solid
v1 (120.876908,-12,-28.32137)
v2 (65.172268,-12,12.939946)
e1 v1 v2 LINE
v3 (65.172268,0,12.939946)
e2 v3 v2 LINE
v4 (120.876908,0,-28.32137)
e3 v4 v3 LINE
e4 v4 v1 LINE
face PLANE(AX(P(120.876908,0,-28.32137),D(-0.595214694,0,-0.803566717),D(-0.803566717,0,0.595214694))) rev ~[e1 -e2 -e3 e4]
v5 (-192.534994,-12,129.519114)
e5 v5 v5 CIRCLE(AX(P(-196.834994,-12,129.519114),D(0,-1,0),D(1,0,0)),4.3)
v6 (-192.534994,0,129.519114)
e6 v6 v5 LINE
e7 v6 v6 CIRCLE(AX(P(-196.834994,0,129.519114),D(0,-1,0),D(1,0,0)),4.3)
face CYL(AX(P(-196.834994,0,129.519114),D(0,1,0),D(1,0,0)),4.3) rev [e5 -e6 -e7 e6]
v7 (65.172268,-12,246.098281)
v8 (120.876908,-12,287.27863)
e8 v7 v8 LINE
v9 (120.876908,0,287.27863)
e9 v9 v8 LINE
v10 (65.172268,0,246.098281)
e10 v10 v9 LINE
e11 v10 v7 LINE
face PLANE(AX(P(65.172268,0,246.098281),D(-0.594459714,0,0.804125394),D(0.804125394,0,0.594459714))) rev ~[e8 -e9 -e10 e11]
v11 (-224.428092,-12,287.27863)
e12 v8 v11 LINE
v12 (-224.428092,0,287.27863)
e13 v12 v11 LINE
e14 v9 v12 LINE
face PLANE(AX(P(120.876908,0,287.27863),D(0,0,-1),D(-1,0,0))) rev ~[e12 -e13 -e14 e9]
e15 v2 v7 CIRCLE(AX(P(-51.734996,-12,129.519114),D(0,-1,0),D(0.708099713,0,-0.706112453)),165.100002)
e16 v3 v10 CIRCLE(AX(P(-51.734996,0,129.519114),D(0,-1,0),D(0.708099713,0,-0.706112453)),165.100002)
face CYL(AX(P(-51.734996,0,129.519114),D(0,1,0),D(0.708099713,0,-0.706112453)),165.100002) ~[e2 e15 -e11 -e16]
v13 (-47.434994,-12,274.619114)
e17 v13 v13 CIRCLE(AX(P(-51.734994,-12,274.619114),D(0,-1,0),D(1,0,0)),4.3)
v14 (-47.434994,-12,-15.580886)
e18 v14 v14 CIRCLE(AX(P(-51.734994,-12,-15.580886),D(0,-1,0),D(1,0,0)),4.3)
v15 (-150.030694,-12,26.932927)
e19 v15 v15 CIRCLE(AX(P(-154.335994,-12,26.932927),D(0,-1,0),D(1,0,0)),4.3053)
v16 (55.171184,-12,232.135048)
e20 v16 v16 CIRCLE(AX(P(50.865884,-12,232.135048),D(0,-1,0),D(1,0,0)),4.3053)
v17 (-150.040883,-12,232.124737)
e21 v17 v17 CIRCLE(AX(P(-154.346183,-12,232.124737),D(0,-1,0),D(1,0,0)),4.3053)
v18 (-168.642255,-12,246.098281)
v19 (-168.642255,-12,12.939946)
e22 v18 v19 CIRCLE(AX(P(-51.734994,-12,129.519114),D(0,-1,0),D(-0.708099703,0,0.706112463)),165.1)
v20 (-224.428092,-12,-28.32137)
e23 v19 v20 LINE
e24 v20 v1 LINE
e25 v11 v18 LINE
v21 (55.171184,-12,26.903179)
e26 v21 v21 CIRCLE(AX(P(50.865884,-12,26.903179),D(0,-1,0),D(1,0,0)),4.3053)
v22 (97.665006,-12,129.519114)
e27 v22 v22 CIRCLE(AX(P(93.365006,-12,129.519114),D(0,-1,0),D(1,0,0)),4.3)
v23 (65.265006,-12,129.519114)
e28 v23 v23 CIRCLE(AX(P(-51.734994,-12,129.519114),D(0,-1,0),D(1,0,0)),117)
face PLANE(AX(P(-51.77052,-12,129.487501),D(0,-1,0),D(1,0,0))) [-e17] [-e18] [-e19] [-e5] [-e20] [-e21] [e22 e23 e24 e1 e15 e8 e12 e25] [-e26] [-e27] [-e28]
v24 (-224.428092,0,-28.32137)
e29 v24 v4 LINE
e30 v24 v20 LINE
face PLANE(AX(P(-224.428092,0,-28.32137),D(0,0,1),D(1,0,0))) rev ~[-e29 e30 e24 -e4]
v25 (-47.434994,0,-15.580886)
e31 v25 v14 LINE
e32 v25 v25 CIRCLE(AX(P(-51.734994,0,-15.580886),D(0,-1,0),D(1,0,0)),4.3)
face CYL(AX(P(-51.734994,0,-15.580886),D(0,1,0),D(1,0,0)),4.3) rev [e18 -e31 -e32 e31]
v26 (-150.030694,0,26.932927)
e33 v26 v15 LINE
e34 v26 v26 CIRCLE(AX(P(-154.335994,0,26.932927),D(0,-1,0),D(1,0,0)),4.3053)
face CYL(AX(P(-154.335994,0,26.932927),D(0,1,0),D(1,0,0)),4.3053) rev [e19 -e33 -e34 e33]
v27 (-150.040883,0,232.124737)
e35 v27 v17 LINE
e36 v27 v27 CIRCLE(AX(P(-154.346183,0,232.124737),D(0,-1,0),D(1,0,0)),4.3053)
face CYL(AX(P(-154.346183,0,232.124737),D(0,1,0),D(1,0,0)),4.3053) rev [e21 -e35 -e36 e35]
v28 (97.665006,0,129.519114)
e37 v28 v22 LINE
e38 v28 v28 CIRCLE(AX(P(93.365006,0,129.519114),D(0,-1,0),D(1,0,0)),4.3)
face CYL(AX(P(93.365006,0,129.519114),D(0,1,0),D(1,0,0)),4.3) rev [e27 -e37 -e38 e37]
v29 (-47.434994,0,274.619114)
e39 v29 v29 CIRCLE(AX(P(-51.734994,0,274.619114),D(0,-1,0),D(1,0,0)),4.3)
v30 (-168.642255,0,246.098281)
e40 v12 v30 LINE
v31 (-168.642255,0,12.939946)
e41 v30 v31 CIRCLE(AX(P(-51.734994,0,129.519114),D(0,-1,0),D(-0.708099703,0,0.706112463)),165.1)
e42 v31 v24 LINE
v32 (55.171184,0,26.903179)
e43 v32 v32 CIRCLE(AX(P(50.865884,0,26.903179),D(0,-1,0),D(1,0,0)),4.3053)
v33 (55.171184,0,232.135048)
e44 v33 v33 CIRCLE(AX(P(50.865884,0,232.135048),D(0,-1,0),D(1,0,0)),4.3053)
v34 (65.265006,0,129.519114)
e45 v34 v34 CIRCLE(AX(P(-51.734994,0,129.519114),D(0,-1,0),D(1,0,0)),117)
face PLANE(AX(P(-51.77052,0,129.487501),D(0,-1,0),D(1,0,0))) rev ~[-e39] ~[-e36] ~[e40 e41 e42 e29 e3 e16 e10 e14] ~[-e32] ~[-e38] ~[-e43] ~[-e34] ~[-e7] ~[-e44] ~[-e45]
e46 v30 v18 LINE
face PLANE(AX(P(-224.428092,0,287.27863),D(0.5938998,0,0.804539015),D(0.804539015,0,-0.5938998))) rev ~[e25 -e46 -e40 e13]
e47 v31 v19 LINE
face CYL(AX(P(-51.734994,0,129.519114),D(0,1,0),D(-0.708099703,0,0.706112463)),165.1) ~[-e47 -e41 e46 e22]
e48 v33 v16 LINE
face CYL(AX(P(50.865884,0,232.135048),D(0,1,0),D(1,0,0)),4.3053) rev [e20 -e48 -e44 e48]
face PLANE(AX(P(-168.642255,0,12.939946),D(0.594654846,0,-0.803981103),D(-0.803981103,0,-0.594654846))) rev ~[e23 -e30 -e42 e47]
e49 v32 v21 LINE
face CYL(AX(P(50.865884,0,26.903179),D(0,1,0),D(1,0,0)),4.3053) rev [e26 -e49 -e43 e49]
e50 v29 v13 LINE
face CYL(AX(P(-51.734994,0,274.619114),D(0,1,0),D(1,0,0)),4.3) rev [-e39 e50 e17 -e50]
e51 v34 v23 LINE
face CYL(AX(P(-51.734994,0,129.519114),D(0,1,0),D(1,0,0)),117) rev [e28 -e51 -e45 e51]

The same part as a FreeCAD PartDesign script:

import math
import FreeCAD as App
import Part
import Sketcher
Q = App.Units.Quantity

doc = App.newDocument("Part")
body = doc.addObject("PartDesign::Body", "Body")

sketch1 = doc.addObject("Sketcher::SketchObject", "Sketch")
body.addObject(sketch1)
sketch1.AttachmentSupport = (doc.XZ_Plane, [""])
sketch1.MapMode = "FlatFace"
sketch1.addGeometry([
    Part.LineSegment(App.Vector(-168.6, 12.9, 0), App.Vector(-224.4, -28.3, 0)),
    Part.LineSegment(App.Vector(-224.4, -28.3, 0), App.Vector(120.9, -28.3, 0)),
    Part.LineSegment(App.Vector(120.9, -28.3, 0), App.Vector(65.2, 12.9, 0)),
    Part.ArcOfCircle(Part.Circle(App.Vector(-51.7, 129.5, 0), App.Vector(0, 0, 1), 165.1), math.radians(-45), math.radians(45)),
    Part.LineSegment(App.Vector(65.2, 246.1, 0), App.Vector(120.9, 287.3, 0)),
    Part.LineSegment(App.Vector(120.9, 287.3, 0), App.Vector(-224.4, 287.3, 0)),
    Part.LineSegment(App.Vector(-224.4, 287.3, 0), App.Vector(-168.6, 246.1, 0)),
    Part.ArcOfCircle(Part.Circle(App.Vector(-51.7, 129.5, 0), App.Vector(0, 0, 1), 165.1), math.radians(135), math.radians(225)),
    Part.Circle(App.Vector(-154.3, 26.9, 0), App.Vector(0, 0, 1), 4.3),
    Part.Circle(App.Vector(-51.7, -15.6, 0), App.Vector(0, 0, 1), 4.3),
    Part.Circle(App.Vector(50.9, 26.9, 0), App.Vector(0, 0, 1), 4.3),
    Part.Circle(App.Vector(-196.8, 129.5, 0), App.Vector(0, 0, 1), 4.3),
    Part.Circle(App.Vector(-154.3, 232.1, 0), App.Vector(0, 0, 1), 4.3),
    Part.Circle(App.Vector(-51.7, 129.5, 0), App.Vector(0, 0, 1), 117),
    Part.Circle(App.Vector(93.4, 129.5, 0), App.Vector(0, 0, 1), 4.3),
    Part.Circle(App.Vector(-51.7, 274.6, 0), App.Vector(0, 0, 1), 4.3),
    Part.Circle(App.Vector(50.9, 232.1, 0), App.Vector(0, 0, 1), 4.3),
], False)
sketch1.addConstraint([
    Sketcher.Constraint("Coincident", 0, 2, 1, 1),
    Sketcher.Constraint("Coincident", 1, 2, 2, 1),
    Sketcher.Constraint("Coincident", 2, 2, 3, 1),
    Sketcher.Constraint("Coincident", 3, 2, 4, 1),
    Sketcher.Constraint("Coincident", 4, 2, 5, 1),
    Sketcher.Constraint("Coincident", 5, 2, 6, 1),
    Sketcher.Constraint("Coincident", 6, 2, 7, 1),
    Sketcher.Constraint("Coincident", 7, 2, 0, 1),
    Sketcher.Constraint("Horizontal", 1),
    Sketcher.Constraint("Horizontal", 5),
    Sketcher.Constraint("Coincident", 7, 3, 3, 3),
    Sketcher.Constraint("Coincident", 13, 3, 3, 3),
    Sketcher.Constraint("Equal", 8, 10),
    Sketcher.Constraint("Equal", 9, 11),
    Sketcher.Constraint("Equal", 10, 12),
    Sketcher.Constraint("Equal", 11, 14),
    Sketcher.Constraint("Equal", 14, 15),
    Sketcher.Constraint("Equal", 12, 16),
    Sketcher.Constraint("Horizontal", 7, 3, 11, 3),
    Sketcher.Constraint("Horizontal", 13, 3, 14, 3),
    Sketcher.Constraint("Horizontal", 3, 2, 6, 2),
    Sketcher.Constraint("Horizontal", 2, 2, 7, 2),
    Sketcher.Constraint("Vertical", 7, 3, 9, 3),
    Sketcher.Constraint("Vertical", 13, 3, 15, 3),
    Sketcher.Constraint("Vertical", 10, 3, 16, 3),
    Sketcher.Constraint("Vertical", 2, 2, 3, 2),
    Sketcher.Constraint("Vertical", 1, 2, 4, 2),
    Sketcher.Constraint("Vertical", 0, 2, 5, 2),
    Sketcher.Constraint("Diameter", 13, Q("234 mm")),
    Sketcher.Constraint("Diameter", 9, Q("8.6 mm")),
    Sketcher.Constraint("Radius", 7, Q("165.1 mm")),
    Sketcher.Constraint("Diameter", 8, Q("8.6106 mm")),
    Sketcher.Constraint("DistanceY", 9, 3, 7, 3, Q("145.099999 mm")),
    Sketcher.Constraint("DistanceX", 11, 3, 7, 3, Q("145.1 mm")),
    Sketcher.Constraint("DistanceX", 13, 3, 14, 3, Q("145.1 mm")),
    Sketcher.Constraint("DistanceY", 13, 3, 15, 3, Q("145.1 mm")),
    Sketcher.Constraint("DistanceX", 1, 1, 1, 2, Q("345.305 mm")),
    Sketcher.Constraint("Distance", 0, Q("69.387 mm")),
    Sketcher.Constraint("Radius", 3, Q("165.100002 mm")),
    Sketcher.Constraint("DistanceX", 8, 3, 7, 3, Q("102.601 mm")),
    Sketcher.Constraint("DistanceX", 0, 2, 9, 3, Q("172.693098 mm")),
    Sketcher.Constraint("DistanceY", -1, 1, 10, 3, Q("26.903179 mm")),
    Sketcher.Constraint("DistanceY", -1, 1, 16, 3, Q("232.135048 mm")),
    Sketcher.Constraint("DistanceX", 0, 2, -1, 1, Q("224.428092 mm")),
    Sketcher.Constraint("DistanceY", 0, 2, -1, 1, Q("28.32137 mm")),
    Sketcher.Constraint("DistanceX", -1, 1, 2, 2, Q("65.172268 mm")),
    Sketcher.Constraint("DistanceY", -1, 1, 4, 2, Q("287.27863 mm")),
    Sketcher.Constraint("DistanceX", 7, 3, 10, 3, Q("102.600878 mm")),
    Sketcher.Constraint("DistanceX", 11, 3, 12, 3, Q("42.488811 mm")),
    Sketcher.Constraint("DistanceY", 8, 3, 12, 3, Q("205.19181 mm")),
    Sketcher.Constraint("DistanceY", 7, 2, 8, 3, Q("13.992981 mm")),
])
pad1 = doc.addObject("PartDesign::Pad", "Pad")
body.addObject(pad1)
pad1.Profile = sketch1
pad1.Length = 12

doc.recompute()
